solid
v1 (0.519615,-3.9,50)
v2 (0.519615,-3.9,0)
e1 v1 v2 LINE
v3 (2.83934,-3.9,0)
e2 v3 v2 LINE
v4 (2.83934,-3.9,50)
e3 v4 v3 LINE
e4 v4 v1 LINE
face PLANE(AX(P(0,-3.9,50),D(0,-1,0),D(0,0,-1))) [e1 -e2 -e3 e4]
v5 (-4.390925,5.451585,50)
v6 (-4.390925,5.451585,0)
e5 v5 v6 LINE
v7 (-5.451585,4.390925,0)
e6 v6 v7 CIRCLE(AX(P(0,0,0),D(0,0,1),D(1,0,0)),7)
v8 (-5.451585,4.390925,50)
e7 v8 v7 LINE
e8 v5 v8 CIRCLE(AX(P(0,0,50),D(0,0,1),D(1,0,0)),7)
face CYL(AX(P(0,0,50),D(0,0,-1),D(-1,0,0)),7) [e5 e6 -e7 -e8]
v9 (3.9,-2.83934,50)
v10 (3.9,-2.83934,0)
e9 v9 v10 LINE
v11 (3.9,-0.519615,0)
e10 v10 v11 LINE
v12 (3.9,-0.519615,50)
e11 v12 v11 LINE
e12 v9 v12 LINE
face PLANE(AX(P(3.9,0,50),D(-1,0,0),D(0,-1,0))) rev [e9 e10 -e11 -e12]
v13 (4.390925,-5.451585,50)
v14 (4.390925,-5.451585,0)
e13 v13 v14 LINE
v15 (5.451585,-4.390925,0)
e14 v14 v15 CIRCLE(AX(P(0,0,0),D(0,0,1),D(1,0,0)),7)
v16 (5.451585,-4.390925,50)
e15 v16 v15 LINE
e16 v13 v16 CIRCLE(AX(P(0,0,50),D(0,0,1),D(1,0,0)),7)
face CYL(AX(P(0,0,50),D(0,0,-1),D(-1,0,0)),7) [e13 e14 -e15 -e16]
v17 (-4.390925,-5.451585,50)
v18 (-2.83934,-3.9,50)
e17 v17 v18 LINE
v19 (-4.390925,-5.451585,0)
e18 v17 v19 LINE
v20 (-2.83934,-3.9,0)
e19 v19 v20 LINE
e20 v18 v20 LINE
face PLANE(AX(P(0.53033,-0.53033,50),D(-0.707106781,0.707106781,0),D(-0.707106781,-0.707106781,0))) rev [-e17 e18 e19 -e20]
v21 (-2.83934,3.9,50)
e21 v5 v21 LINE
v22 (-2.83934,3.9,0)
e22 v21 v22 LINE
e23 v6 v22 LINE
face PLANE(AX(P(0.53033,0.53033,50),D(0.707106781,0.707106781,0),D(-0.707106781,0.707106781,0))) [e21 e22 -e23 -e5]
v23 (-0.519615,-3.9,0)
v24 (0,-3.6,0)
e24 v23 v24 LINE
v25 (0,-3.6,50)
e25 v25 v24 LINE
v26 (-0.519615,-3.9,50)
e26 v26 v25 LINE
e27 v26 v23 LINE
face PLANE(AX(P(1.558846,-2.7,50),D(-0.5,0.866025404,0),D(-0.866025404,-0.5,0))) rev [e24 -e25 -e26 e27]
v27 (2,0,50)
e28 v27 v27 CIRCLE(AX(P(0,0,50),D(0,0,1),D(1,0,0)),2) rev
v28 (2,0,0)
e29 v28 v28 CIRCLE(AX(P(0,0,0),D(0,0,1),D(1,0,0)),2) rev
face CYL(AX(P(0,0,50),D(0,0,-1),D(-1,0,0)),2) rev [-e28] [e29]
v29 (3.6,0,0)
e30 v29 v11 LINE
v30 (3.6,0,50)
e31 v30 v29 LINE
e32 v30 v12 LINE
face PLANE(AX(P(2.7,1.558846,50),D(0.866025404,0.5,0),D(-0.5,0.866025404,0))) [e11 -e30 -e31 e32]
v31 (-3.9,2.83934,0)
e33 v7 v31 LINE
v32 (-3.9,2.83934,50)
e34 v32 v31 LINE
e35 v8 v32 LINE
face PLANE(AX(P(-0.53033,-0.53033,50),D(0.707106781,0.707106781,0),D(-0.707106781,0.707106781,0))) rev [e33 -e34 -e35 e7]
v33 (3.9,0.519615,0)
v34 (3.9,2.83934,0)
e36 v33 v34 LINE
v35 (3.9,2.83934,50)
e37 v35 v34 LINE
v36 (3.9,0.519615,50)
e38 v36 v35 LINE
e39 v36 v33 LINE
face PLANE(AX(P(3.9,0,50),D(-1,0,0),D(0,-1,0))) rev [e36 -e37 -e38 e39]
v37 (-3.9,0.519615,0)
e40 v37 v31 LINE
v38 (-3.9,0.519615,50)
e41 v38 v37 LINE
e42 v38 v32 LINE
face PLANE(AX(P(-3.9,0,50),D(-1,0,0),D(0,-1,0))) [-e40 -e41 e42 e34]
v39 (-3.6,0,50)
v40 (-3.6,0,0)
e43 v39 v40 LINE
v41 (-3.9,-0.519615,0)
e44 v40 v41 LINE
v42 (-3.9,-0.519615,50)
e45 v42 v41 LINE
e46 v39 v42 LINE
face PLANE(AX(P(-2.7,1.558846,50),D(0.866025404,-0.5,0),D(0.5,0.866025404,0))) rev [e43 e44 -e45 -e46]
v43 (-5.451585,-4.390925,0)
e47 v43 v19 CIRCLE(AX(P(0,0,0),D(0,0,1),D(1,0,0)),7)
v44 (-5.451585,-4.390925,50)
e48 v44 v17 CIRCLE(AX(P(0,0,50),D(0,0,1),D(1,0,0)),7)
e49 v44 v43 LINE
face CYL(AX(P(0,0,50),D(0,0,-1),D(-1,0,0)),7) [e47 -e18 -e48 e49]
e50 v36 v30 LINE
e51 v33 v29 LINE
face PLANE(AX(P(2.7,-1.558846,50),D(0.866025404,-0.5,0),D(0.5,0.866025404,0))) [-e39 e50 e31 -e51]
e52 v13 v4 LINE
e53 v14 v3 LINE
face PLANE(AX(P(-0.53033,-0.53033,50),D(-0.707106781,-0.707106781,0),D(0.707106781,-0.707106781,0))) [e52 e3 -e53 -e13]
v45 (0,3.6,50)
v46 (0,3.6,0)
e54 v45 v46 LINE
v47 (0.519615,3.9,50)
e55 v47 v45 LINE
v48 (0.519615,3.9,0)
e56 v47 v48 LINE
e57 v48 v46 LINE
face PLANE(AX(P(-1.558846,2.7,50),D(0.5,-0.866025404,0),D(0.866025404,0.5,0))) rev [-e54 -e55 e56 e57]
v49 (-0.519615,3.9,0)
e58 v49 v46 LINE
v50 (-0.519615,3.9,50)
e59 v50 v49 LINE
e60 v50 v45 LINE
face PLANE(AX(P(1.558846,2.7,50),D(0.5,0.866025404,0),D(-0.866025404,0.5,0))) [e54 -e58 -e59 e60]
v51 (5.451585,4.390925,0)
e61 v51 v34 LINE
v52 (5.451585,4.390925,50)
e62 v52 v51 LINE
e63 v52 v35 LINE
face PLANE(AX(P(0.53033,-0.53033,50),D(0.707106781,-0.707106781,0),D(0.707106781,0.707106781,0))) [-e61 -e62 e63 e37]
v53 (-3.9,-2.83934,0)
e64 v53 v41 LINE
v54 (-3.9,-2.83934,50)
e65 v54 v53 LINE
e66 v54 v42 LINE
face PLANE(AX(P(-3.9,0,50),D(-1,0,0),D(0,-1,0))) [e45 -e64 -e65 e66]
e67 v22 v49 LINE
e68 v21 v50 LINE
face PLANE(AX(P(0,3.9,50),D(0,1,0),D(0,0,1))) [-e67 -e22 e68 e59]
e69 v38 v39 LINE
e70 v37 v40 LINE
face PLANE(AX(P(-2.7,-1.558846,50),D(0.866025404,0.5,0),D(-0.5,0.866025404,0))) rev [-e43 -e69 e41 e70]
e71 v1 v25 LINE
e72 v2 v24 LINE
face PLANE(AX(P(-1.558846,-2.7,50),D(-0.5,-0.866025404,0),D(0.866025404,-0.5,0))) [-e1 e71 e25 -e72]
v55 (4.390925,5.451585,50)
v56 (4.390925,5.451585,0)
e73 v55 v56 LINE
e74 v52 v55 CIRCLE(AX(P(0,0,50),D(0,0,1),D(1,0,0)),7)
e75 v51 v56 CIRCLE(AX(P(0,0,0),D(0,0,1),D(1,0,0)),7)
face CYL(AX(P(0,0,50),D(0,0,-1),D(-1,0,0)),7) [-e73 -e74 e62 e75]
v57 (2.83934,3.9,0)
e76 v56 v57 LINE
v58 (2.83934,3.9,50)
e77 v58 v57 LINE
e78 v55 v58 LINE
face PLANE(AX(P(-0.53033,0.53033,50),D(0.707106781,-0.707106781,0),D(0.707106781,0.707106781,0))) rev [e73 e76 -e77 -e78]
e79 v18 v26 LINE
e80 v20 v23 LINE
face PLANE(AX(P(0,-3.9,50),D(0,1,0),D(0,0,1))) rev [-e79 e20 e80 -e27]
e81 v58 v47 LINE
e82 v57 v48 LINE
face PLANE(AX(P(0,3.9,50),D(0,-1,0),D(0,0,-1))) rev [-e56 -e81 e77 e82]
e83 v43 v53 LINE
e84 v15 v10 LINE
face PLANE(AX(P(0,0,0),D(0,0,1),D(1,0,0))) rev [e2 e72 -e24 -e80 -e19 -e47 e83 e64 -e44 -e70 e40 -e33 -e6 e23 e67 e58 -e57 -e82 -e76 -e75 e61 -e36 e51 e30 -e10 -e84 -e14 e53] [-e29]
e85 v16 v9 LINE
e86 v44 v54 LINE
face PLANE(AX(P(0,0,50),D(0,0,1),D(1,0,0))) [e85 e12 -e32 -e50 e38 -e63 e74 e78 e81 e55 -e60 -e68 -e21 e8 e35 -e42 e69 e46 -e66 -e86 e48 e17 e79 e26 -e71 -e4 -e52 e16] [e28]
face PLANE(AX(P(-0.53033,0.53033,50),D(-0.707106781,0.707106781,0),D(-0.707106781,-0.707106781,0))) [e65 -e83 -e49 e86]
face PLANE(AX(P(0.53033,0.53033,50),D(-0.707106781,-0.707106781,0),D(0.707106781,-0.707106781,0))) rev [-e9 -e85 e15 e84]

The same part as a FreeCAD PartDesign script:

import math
import FreeCAD as App
import Part
import Sketcher
from FreeCAD import Vector
Q = App.Units.Quantity

doc = App.newDocument("Part")
body = doc.addObject("PartDesign::Body", "Body")

# Sketch on XY plane
sketch1 = body.newObject("Sketcher::SketchObject", "Sketch")
sketch1.AttachmentSupport = (doc.getObject("XY_Plane"), [""])
sketch1.MapMode = "FlatFace"
sketch1.addGeometry(Part.LineSegment(Vector(3.9, 2.83934, 0), Vector(5.451585, 4.390925, 0)), False)
sketch1.addGeometry(Part.ArcOfCircle(Part.Circle(Vector(0, 0, 0), Vector(0, 0, 1), 7), math.radians(38.84936), math.radians(51.15064)), False)
sketch1.addGeometry(Part.LineSegment(Vector(4.390925, 5.451585, 0), Vector(2.83934, 3.9, 0)), False)
sketch1.addGeometry(Part.LineSegment(Vector(2.83934, 3.9, 0), Vector(0.519615, 3.9, 0)), False)
sketch1.addGeometry(Part.LineSegment(Vector(0.519615, 3.9, 0), Vector(0, 3.6, 0)), False)
sketch1.addGeometry(Part.LineSegment(Vector(0, 3.6, 0), Vector(-0.519615, 3.9, 0)), False)
sketch1.addGeometry(Part.LineSegment(Vector(-0.519615, 3.9, 0), Vector(-2.83934, 3.9, 0)), False)
sketch1.addGeometry(Part.LineSegment(Vector(-2.83934, 3.9, 0), Vector(-4.390925, 5.451585, 0)), False)
sketch1.addGeometry(Part.ArcOfCircle(Part.Circle(Vector(0, 0, 0), Vector(0, 0, 1), 7), math.radians(128.84936), math.radians(141.15064)), False)
sketch1.addGeometry(Part.LineSegment(Vector(-5.451585, 4.390925, 0), Vector(-3.9, 2.83934, 0)), False)
sketch1.addGeometry(Part.LineSegment(Vector(-3.9, 2.83934, 0), Vector(-3.9, 0.519615, 0)), False)
sketch1.addGeometry(Part.LineSegment(Vector(-3.9, 0.519615, 0), Vector(-3.6, 0, 0)), False)
sketch1.addGeometry(Part.LineSegment(Vector(-3.6, 0, 0), Vector(-3.9, -0.519615, 0)), False)
sketch1.addGeometry(Part.LineSegment(Vector(-3.9, -0.519615, 0), Vector(-3.9, -2.83934, 0)), False)
sketch1.addGeometry(Part.LineSegment(Vector(-3.9, -2.83934, 0), Vector(-5.451585, -4.390925, 0)), False)
sketch1.addGeometry(Part.ArcOfCircle(Part.Circle(Vector(0, 0, 0), Vector(0, 0, 1), 7), math.radians(-141.15064), math.radians(-128.84936)), False)
sketch1.addGeometry(Part.LineSegment(Vector(-4.390925, -5.451585, 0), Vector(-2.83934, -3.9, 0)), False)
sketch1.addGeometry(Part.LineSegment(Vector(-2.83934, -3.9, 0), Vector(-0.519615, -3.9, 0)), False)
sketch1.addGeometry(Part.LineSegment(Vector(-0.519615, -3.9, 0), Vector(0, -3.6, 0)), False)
sketch1.addGeometry(Part.LineSegment(Vector(0, -3.6, 0), Vector(0.519615, -3.9, 0)), False)
sketch1.addGeometry(Part.LineSegment(Vector(0.519615, -3.9, 0), Vector(2.83934, -3.9, 0)), False)
sketch1.addGeometry(Part.LineSegment(Vector(2.83934, -3.9, 0), Vector(4.390925, -5.451585, 0)), False)
sketch1.addGeometry(Part.ArcOfCircle(Part.Circle(Vector(0, 0, 0), Vector(0, 0, 1), 7), math.radians(-51.15064), math.radians(-38.84936)), False)
sketch1.addGeometry(Part.LineSegment(Vector(5.451585, -4.390925, 0), Vector(3.9, -2.83934, 0)), False)
sketch1.addGeometry(Part.LineSegment(Vector(3.9, -2.83934, 0), Vector(3.9, -0.519615, 0)), False)
sketch1.addGeometry(Part.LineSegment(Vector(3.9, -0.519615, 0), Vector(3.6, 0, 0)), False)
sketch1.addGeometry(Part.LineSegment(Vector(3.6, 0, 0), Vector(3.9, 0.519615, 0)), False)
sketch1.addGeometry(Part.LineSegment(Vector(3.9, 0.519615, 0), Vector(3.9, 2.83934, 0)), False)
sketch1.addGeometry(Part.Circle(Vector(0, 0, 0), Vector(0, 0, 1), 2), False)
sketch1.addConstraint(Sketcher.Constraint("Coincident", 0, 2, 1, 1))
sketch1.addConstraint(Sketcher.Constraint("Coincident", 1, 2, 2, 1))
sketch1.addConstraint(Sketcher.Constraint("Coincident", 2, 2, 3, 1))
sketch1.addConstraint(Sketcher.Constraint("Coincident", 3, 2, 4, 1))
sketch1.addConstraint(Sketcher.Constraint("Coincident", 4, 2, 5, 1))
sketch1.addConstraint(Sketcher.Constraint("Coincident", 5, 2, 6, 1))
sketch1.addConstraint(Sketcher.Constraint("Coincident", 6, 2, 7, 1))
sketch1.addConstraint(Sketcher.Constraint("Coincident", 7, 2, 8, 1))
sketch1.addConstraint(Sketcher.Constraint("Coincident", 8, 2, 9, 1))
sketch1.addConstraint(Sketcher.Constraint("Coincident", 9, 2, 10, 1))
sketch1.addConstraint(Sketcher.Constraint("Coincident", 10, 2, 11, 1))
sketch1.addConstraint(Sketcher.Constraint("Coincident", 11, 2, 12, 1))
sketch1.addConstraint(Sketcher.Constraint("Coincident", 12, 2, 13, 1))
sketch1.addConstraint(Sketcher.Constraint("Coincident", 13, 2, 14, 1))
sketch1.addConstraint(Sketcher.Constraint("Coincident", 14, 2, 15, 1))
sketch1.addConstraint(Sketcher.Constraint("Coincident", 15, 2, 16, 1))
sketch1.addConstraint(Sketcher.Constraint("Coincident", 16, 2, 17, 1))
sketch1.addConstraint(Sketcher.Constraint("Coincident", 17, 2, 18, 1))
sketch1.addConstraint(Sketcher.Constraint("Coincident", 18, 2, 19, 1))
sketch1.addConstraint(Sketcher.Constraint("Coincident", 19, 2, 20, 1))
sketch1.addConstraint(Sketcher.Constraint("Coincident", 20, 2, 21, 1))
sketch1.addConstraint(Sketcher.Constraint("Coincident", 21, 2, 22, 1))
sketch1.addConstraint(Sketcher.Constraint("Coincident", 22, 2, 23, 1))
sketch1.addConstraint(Sketcher.Constraint("Coincident", 23, 2, 24, 1))
sketch1.addConstraint(Sketcher.Constraint("Coincident", 24, 2, 25, 1))
sketch1.addConstraint(Sketcher.Constraint("Coincident", 25, 2, 26, 1))
sketch1.addConstraint(Sketcher.Constraint("Coincident", 26, 2, 27, 1))
sketch1.addConstraint(Sketcher.Constraint("Coincident", 27, 2, 0, 1))
sketch1.addConstraint(Sketcher.Constraint("Horizontal", 3))
sketch1.addConstraint(Sketcher.Constraint("Horizontal", 6))
sketch1.addConstraint(Sketcher.Constraint("Vertical", 10))
sketch1.addConstraint(Sketcher.Constraint("Vertical", 13))
sketch1.addConstraint(Sketcher.Constraint("Horizontal", 17))
sketch1.addConstraint(Sketcher.Constraint("Horizontal", 20))
sketch1.addConstraint(Sketcher.Constraint("Vertical", 24))
sketch1.addConstraint(Sketcher.Constraint("Vertical", 27))
sketch1.addConstraint(Sketcher.Constraint("Coincident", 1, 3, -1, 1))
sketch1.addConstraint(Sketcher.Constraint("Coincident", 8, 3, -1, 1))
sketch1.addConstraint(Sketcher.Constraint("Coincident", 15, 3, -1, 1))
sketch1.addConstraint(Sketcher.Constraint("Coincident", 22, 3, -1, 1))
sketch1.addConstraint(Sketcher.Constraint("Coincident", 28, 3, -1, 1))
sketch1.addConstraint(Sketcher.Constraint("Equal", 1, 8))
sketch1.addConstraint(Sketcher.Constraint("Equal", 8, 15))
sketch1.addConstraint(Sketcher.Constraint("Equal", 15, 22))
sketch1.addConstraint(Sketcher.Constraint("Symmetric", 2, 2, 16, 2, -1, 1))
sketch1.addConstraint(Sketcher.Constraint("Symmetric", 4, 2, 18, 2, -1, 1))
sketch1.addConstraint(Sketcher.Constraint("Symmetric", 5, 2, 19, 2, -1, 1))
sketch1.addConstraint(Sketcher.Constraint("Symmetric", 9, 2, 23, 2, -1, 1))
sketch1.addConstraint(Sketcher.Constraint("Symmetric", 11, 2, 25, 2, -1, 1))
sketch1.addConstraint(Sketcher.Constraint("Symmetric", 12, 2, 26, 2, -1, 1))
sketch1.addConstraint(Sketcher.Constraint("Symmetric", 3, 2, 5, 2, -2))
sketch1.addConstraint(Sketcher.Constraint("Symmetric", 13, 2, 23, 2, -2))
sketch1.addConstraint(Sketcher.Constraint("PointOnObject", 4, 2, -2))
sketch1.addConstraint(Sketcher.Constraint("PointOnObject", 11, 2, -1))
sketch1.addConstraint(Sketcher.Constraint("Parallel", 0, 2))
sketch1.addConstraint(Sketcher.Constraint("Perpendicular", 2, 7))
sketch1.addConstraint(Sketcher.Constraint("Parallel", 7, 9))
sketch1.addConstraint(Sketcher.Constraint("Perpendicular", 4, 11))
sketch1.addConstraint(Sketcher.Constraint("Perpendicular", 5, 12))
sketch1.addConstraint(Sketcher.Constraint("Perpendicular", 9, 14))
sketch1.addConstraint(Sketcher.Constraint("Parallel", 14, 16))
sketch1.addConstraint(Sketcher.Constraint("Perpendicular", 11, 18))
sketch1.addConstraint(Sketcher.Constraint("Perpendicular", 16, 21))
sketch1.addConstraint(Sketcher.Constraint("Parallel", 21, 23))
sketch1.addConstraint(Sketcher.Constraint("Perpendicular", 18, 25))
sketch1.addConstraint(Sketcher.Constraint("Horizontal", 1, 2, 7, 2))
sketch1.addConstraint(Sketcher.Constraint("Horizontal", 0, 2, 8, 2))
sketch1.addConstraint(Sketcher.Constraint("Horizontal", 15, 2, 21, 2))
sketch1.addConstraint(Sketcher.Constraint("Horizontal", 14, 2, 22, 2))
sketch1.addConstraint(Sketcher.Constraint("Equal", 20, 10))
sketch1.addConstraint(Sketcher.Constraint("Equal", 0, 2))
sketch1.addConstraint(Sketcher.Constraint("Equal", 5, 11))
sketch1.addConstraint(Sketcher.Constraint("Diameter", 28, Q("4 mm")))
sketch1.addConstraint(Sketcher.Constraint("Radius", 1, Q("7 mm")))
sketch1.addConstraint(Sketcher.Constraint("Angle", 4, Q("-150 deg")))
sketch1.addConstraint(Sketcher.Constraint("Distance", 4, Q("0.6 mm")))
sketch1.addConstraint(Sketcher.Constraint("DistanceY", -1, 1, 2, 2, Q("3.9 mm")))
sketch1.addConstraint(Sketcher.Constraint("DistanceX", 8, 2, 3, 2, Q("5.9712 mm")))
pad1 = body.newObject("PartDesign::Pad", "Pad")
pad1.Profile = sketch1
pad1.Length = 50

doc.recompute()
